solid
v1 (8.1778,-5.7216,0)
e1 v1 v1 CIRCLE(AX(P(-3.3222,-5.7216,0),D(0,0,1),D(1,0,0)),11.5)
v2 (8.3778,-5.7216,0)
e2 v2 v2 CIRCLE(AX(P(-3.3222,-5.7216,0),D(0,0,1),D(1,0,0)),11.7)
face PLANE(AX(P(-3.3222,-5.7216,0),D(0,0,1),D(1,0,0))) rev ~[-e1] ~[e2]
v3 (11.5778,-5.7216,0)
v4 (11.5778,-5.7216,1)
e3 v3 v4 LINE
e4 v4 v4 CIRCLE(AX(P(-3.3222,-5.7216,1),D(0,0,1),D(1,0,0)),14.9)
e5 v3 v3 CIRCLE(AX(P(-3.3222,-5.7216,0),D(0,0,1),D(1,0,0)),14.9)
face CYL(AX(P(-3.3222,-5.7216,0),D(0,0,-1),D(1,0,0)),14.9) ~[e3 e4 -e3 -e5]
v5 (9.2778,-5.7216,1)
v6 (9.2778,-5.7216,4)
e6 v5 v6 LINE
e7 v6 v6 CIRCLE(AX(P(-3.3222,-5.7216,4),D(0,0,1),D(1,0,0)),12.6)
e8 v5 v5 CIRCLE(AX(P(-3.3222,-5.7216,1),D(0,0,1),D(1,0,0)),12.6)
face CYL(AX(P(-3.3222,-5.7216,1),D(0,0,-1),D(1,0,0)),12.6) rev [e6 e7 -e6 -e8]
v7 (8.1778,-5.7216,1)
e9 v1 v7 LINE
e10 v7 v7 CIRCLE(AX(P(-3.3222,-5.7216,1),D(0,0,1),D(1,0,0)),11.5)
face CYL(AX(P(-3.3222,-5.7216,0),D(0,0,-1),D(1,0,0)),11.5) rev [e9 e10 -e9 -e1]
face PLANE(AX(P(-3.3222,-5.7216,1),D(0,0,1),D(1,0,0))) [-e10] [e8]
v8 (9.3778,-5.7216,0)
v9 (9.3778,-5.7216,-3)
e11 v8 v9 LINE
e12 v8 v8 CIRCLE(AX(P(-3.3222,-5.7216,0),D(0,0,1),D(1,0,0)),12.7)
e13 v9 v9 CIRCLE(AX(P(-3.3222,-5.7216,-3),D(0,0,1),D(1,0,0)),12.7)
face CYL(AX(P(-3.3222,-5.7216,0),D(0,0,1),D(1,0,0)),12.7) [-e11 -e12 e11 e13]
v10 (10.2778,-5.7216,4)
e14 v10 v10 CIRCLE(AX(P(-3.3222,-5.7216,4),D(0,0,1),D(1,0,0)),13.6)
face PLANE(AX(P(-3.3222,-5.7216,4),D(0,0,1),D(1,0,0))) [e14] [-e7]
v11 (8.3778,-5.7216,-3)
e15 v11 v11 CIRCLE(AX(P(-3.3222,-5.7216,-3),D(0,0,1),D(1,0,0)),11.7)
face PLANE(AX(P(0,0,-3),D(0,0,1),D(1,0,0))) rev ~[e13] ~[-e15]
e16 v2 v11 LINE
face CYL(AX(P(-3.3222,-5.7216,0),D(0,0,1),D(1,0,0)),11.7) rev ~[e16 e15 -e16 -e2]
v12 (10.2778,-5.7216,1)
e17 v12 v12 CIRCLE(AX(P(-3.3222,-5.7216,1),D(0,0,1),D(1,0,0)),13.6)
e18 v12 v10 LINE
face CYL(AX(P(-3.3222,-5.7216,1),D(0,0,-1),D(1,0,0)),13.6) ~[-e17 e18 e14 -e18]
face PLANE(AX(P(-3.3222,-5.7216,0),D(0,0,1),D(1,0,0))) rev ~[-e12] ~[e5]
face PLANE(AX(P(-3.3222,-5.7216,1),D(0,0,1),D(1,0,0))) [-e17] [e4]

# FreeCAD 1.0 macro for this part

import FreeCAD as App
import Part
import Sketcher
Q = App.Units.Quantity

doc = App.newDocument("Part")
params = doc.addObject("Spreadsheet::Sheet", "Params")
for row, (alias, value) in enumerate([
    ("sketch1_diameter", "25.4 mm"),
    ("sketch1_diameter2", "23.4 mm"),
    ("pad1_length", "3 mm"),
    ("sketch2_diameter", "23 mm"),
    ("sketch2_diameter2", "29.8 mm"),
    ("pad2_length", "1 mm"),
    ("sketch3_diameter", "25.2 mm"),
    ("sketch3_diameter2", "27.2 mm"),
    ("pad3_length", "3 mm"),
], start=1):
    params.set(f"A{row}", alias)
    params.set(f"B{row}", "=" + value)
    params.setAlias(f"B{row}", alias)

body = doc.addObject("PartDesign::Body", "Body")

sketch1 = doc.addObject("Sketcher::SketchObject", "Sketch")
body.addObject(sketch1)
sketch1.AttachmentSupport = (doc.XY_Plane, [""])
sketch1.MapMode = "FlatFace"
sketch1.addGeometry(Part.Circle(App.Vector(-3, -6, 0), App.Vector(0, 0, 1), 13), False)
sketch1.addGeometry(Part.Circle(App.Vector(-3, -6, 0), App.Vector(0, 0, 1), 12), False)
sketch1.addConstraint(Sketcher.Constraint("Coincident", 1, 3, 0, 3))
sketch1.addConstraint(Sketcher.Constraint("Diameter", 0, Q("25.4 mm")))
sketch1.addConstraint(Sketcher.Constraint("Diameter", 1, Q("23.4 mm")))
sketch1.addConstraint(Sketcher.Constraint("DistanceX", 0, 3, -1, 1, Q("3.3222 mm")))
sketch1.addConstraint(Sketcher.Constraint("DistanceY", 0, 3, -1, 1, Q("5.7216 mm")))
sketch1.setExpression("Constraints[1]", "Params.sketch1_diameter")
sketch1.setExpression("Constraints[2]", "Params.sketch1_diameter2")
pad1 = doc.addObject("PartDesign::Pad", "Pad")
body.addObject(pad1)
pad1.Profile = sketch1
pad1.setExpression("Length", "Params.pad1_length")
pad1.Reversed = True

sketch2 = doc.addObject("Sketcher::SketchObject", "Sketch001")
body.addObject(sketch2)
sketch2.AttachmentSupport = (doc.XY_Plane, [""])
sketch2.MapMode = "FlatFace"
sketch2.addGeometry(Part.Circle(App.Vector(-3, -6, 0), App.Vector(0, 0, 1), 15), False)
sketch2.addGeometry(Part.Circle(App.Vector(-3, -6, 0), App.Vector(0, 0, 1), 12), False)
sketch2.addConstraint(Sketcher.Constraint("Coincident", 1, 3, 0, 3))
sketch2.addConstraint(Sketcher.Constraint("Diameter", 1, Q("23 mm")))
sketch2.addConstraint(Sketcher.Constraint("Diameter", 0, Q("29.8 mm")))
sketch2.addConstraint(Sketcher.Constraint("DistanceX", 0, 3, -1, 1, Q("3.3222 mm")))
sketch2.addConstraint(Sketcher.Constraint("DistanceY", 0, 3, -1, 1, Q("5.7216 mm")))
sketch2.setExpression("Constraints[1]", "Params.sketch2_diameter")
sketch2.setExpression("Constraints[2]", "Params.sketch2_diameter2")
pad2 = doc.addObject("PartDesign::Pad", "Pad001")
body.addObject(pad2)
pad2.Profile = sketch2
pad2.setExpression("Length", "Params.pad2_length")

sketch3 = doc.addObject("Sketcher::SketchObject", "Sketch002")
body.addObject(sketch3)
sketch3.AttachmentSupport = (doc.XY_Plane, [""])
sketch3.MapMode = "FlatFace"
sketch3.AttachmentOffset = App.Placement(App.Vector(0, 0, 1), App.Rotation())
sketch3.addGeometry(Part.Circle(App.Vector(-3, -6, 0), App.Vector(0, 0, 1), 14), False)
sketch3.addGeometry(Part.Circle(App.Vector(-3, -6, 0), App.Vector(0, 0, 1), 13), False)
sketch3.addConstraint(Sketcher.Constraint("Coincident", 1, 3, 0, 3))
sketch3.addConstraint(Sketcher.Constraint("Diameter", 1, Q("25.2 mm")))
sketch3.addConstraint(Sketcher.Constraint("Diameter", 0, Q("27.2 mm")))
sketch3.addConstraint(Sketcher.Constraint("DistanceX", 0, 3, -1, 1, Q("3.3222 mm")))
sketch3.addConstraint(Sketcher.Constraint("DistanceY", 0, 3, -1, 1, Q("5.7216 mm")))
sketch3.setExpression("Constraints[1]", "Params.sketch3_diameter")
sketch3.setExpression("Constraints[2]", "Params.sketch3_diameter2")
pad3 = doc.addObject("PartDesign::Pad", "Pad002")
body.addObject(pad3)
pad3.Profile = sketch3
pad3.setExpression("Length", "Params.pad3_length")

doc.recompute()
